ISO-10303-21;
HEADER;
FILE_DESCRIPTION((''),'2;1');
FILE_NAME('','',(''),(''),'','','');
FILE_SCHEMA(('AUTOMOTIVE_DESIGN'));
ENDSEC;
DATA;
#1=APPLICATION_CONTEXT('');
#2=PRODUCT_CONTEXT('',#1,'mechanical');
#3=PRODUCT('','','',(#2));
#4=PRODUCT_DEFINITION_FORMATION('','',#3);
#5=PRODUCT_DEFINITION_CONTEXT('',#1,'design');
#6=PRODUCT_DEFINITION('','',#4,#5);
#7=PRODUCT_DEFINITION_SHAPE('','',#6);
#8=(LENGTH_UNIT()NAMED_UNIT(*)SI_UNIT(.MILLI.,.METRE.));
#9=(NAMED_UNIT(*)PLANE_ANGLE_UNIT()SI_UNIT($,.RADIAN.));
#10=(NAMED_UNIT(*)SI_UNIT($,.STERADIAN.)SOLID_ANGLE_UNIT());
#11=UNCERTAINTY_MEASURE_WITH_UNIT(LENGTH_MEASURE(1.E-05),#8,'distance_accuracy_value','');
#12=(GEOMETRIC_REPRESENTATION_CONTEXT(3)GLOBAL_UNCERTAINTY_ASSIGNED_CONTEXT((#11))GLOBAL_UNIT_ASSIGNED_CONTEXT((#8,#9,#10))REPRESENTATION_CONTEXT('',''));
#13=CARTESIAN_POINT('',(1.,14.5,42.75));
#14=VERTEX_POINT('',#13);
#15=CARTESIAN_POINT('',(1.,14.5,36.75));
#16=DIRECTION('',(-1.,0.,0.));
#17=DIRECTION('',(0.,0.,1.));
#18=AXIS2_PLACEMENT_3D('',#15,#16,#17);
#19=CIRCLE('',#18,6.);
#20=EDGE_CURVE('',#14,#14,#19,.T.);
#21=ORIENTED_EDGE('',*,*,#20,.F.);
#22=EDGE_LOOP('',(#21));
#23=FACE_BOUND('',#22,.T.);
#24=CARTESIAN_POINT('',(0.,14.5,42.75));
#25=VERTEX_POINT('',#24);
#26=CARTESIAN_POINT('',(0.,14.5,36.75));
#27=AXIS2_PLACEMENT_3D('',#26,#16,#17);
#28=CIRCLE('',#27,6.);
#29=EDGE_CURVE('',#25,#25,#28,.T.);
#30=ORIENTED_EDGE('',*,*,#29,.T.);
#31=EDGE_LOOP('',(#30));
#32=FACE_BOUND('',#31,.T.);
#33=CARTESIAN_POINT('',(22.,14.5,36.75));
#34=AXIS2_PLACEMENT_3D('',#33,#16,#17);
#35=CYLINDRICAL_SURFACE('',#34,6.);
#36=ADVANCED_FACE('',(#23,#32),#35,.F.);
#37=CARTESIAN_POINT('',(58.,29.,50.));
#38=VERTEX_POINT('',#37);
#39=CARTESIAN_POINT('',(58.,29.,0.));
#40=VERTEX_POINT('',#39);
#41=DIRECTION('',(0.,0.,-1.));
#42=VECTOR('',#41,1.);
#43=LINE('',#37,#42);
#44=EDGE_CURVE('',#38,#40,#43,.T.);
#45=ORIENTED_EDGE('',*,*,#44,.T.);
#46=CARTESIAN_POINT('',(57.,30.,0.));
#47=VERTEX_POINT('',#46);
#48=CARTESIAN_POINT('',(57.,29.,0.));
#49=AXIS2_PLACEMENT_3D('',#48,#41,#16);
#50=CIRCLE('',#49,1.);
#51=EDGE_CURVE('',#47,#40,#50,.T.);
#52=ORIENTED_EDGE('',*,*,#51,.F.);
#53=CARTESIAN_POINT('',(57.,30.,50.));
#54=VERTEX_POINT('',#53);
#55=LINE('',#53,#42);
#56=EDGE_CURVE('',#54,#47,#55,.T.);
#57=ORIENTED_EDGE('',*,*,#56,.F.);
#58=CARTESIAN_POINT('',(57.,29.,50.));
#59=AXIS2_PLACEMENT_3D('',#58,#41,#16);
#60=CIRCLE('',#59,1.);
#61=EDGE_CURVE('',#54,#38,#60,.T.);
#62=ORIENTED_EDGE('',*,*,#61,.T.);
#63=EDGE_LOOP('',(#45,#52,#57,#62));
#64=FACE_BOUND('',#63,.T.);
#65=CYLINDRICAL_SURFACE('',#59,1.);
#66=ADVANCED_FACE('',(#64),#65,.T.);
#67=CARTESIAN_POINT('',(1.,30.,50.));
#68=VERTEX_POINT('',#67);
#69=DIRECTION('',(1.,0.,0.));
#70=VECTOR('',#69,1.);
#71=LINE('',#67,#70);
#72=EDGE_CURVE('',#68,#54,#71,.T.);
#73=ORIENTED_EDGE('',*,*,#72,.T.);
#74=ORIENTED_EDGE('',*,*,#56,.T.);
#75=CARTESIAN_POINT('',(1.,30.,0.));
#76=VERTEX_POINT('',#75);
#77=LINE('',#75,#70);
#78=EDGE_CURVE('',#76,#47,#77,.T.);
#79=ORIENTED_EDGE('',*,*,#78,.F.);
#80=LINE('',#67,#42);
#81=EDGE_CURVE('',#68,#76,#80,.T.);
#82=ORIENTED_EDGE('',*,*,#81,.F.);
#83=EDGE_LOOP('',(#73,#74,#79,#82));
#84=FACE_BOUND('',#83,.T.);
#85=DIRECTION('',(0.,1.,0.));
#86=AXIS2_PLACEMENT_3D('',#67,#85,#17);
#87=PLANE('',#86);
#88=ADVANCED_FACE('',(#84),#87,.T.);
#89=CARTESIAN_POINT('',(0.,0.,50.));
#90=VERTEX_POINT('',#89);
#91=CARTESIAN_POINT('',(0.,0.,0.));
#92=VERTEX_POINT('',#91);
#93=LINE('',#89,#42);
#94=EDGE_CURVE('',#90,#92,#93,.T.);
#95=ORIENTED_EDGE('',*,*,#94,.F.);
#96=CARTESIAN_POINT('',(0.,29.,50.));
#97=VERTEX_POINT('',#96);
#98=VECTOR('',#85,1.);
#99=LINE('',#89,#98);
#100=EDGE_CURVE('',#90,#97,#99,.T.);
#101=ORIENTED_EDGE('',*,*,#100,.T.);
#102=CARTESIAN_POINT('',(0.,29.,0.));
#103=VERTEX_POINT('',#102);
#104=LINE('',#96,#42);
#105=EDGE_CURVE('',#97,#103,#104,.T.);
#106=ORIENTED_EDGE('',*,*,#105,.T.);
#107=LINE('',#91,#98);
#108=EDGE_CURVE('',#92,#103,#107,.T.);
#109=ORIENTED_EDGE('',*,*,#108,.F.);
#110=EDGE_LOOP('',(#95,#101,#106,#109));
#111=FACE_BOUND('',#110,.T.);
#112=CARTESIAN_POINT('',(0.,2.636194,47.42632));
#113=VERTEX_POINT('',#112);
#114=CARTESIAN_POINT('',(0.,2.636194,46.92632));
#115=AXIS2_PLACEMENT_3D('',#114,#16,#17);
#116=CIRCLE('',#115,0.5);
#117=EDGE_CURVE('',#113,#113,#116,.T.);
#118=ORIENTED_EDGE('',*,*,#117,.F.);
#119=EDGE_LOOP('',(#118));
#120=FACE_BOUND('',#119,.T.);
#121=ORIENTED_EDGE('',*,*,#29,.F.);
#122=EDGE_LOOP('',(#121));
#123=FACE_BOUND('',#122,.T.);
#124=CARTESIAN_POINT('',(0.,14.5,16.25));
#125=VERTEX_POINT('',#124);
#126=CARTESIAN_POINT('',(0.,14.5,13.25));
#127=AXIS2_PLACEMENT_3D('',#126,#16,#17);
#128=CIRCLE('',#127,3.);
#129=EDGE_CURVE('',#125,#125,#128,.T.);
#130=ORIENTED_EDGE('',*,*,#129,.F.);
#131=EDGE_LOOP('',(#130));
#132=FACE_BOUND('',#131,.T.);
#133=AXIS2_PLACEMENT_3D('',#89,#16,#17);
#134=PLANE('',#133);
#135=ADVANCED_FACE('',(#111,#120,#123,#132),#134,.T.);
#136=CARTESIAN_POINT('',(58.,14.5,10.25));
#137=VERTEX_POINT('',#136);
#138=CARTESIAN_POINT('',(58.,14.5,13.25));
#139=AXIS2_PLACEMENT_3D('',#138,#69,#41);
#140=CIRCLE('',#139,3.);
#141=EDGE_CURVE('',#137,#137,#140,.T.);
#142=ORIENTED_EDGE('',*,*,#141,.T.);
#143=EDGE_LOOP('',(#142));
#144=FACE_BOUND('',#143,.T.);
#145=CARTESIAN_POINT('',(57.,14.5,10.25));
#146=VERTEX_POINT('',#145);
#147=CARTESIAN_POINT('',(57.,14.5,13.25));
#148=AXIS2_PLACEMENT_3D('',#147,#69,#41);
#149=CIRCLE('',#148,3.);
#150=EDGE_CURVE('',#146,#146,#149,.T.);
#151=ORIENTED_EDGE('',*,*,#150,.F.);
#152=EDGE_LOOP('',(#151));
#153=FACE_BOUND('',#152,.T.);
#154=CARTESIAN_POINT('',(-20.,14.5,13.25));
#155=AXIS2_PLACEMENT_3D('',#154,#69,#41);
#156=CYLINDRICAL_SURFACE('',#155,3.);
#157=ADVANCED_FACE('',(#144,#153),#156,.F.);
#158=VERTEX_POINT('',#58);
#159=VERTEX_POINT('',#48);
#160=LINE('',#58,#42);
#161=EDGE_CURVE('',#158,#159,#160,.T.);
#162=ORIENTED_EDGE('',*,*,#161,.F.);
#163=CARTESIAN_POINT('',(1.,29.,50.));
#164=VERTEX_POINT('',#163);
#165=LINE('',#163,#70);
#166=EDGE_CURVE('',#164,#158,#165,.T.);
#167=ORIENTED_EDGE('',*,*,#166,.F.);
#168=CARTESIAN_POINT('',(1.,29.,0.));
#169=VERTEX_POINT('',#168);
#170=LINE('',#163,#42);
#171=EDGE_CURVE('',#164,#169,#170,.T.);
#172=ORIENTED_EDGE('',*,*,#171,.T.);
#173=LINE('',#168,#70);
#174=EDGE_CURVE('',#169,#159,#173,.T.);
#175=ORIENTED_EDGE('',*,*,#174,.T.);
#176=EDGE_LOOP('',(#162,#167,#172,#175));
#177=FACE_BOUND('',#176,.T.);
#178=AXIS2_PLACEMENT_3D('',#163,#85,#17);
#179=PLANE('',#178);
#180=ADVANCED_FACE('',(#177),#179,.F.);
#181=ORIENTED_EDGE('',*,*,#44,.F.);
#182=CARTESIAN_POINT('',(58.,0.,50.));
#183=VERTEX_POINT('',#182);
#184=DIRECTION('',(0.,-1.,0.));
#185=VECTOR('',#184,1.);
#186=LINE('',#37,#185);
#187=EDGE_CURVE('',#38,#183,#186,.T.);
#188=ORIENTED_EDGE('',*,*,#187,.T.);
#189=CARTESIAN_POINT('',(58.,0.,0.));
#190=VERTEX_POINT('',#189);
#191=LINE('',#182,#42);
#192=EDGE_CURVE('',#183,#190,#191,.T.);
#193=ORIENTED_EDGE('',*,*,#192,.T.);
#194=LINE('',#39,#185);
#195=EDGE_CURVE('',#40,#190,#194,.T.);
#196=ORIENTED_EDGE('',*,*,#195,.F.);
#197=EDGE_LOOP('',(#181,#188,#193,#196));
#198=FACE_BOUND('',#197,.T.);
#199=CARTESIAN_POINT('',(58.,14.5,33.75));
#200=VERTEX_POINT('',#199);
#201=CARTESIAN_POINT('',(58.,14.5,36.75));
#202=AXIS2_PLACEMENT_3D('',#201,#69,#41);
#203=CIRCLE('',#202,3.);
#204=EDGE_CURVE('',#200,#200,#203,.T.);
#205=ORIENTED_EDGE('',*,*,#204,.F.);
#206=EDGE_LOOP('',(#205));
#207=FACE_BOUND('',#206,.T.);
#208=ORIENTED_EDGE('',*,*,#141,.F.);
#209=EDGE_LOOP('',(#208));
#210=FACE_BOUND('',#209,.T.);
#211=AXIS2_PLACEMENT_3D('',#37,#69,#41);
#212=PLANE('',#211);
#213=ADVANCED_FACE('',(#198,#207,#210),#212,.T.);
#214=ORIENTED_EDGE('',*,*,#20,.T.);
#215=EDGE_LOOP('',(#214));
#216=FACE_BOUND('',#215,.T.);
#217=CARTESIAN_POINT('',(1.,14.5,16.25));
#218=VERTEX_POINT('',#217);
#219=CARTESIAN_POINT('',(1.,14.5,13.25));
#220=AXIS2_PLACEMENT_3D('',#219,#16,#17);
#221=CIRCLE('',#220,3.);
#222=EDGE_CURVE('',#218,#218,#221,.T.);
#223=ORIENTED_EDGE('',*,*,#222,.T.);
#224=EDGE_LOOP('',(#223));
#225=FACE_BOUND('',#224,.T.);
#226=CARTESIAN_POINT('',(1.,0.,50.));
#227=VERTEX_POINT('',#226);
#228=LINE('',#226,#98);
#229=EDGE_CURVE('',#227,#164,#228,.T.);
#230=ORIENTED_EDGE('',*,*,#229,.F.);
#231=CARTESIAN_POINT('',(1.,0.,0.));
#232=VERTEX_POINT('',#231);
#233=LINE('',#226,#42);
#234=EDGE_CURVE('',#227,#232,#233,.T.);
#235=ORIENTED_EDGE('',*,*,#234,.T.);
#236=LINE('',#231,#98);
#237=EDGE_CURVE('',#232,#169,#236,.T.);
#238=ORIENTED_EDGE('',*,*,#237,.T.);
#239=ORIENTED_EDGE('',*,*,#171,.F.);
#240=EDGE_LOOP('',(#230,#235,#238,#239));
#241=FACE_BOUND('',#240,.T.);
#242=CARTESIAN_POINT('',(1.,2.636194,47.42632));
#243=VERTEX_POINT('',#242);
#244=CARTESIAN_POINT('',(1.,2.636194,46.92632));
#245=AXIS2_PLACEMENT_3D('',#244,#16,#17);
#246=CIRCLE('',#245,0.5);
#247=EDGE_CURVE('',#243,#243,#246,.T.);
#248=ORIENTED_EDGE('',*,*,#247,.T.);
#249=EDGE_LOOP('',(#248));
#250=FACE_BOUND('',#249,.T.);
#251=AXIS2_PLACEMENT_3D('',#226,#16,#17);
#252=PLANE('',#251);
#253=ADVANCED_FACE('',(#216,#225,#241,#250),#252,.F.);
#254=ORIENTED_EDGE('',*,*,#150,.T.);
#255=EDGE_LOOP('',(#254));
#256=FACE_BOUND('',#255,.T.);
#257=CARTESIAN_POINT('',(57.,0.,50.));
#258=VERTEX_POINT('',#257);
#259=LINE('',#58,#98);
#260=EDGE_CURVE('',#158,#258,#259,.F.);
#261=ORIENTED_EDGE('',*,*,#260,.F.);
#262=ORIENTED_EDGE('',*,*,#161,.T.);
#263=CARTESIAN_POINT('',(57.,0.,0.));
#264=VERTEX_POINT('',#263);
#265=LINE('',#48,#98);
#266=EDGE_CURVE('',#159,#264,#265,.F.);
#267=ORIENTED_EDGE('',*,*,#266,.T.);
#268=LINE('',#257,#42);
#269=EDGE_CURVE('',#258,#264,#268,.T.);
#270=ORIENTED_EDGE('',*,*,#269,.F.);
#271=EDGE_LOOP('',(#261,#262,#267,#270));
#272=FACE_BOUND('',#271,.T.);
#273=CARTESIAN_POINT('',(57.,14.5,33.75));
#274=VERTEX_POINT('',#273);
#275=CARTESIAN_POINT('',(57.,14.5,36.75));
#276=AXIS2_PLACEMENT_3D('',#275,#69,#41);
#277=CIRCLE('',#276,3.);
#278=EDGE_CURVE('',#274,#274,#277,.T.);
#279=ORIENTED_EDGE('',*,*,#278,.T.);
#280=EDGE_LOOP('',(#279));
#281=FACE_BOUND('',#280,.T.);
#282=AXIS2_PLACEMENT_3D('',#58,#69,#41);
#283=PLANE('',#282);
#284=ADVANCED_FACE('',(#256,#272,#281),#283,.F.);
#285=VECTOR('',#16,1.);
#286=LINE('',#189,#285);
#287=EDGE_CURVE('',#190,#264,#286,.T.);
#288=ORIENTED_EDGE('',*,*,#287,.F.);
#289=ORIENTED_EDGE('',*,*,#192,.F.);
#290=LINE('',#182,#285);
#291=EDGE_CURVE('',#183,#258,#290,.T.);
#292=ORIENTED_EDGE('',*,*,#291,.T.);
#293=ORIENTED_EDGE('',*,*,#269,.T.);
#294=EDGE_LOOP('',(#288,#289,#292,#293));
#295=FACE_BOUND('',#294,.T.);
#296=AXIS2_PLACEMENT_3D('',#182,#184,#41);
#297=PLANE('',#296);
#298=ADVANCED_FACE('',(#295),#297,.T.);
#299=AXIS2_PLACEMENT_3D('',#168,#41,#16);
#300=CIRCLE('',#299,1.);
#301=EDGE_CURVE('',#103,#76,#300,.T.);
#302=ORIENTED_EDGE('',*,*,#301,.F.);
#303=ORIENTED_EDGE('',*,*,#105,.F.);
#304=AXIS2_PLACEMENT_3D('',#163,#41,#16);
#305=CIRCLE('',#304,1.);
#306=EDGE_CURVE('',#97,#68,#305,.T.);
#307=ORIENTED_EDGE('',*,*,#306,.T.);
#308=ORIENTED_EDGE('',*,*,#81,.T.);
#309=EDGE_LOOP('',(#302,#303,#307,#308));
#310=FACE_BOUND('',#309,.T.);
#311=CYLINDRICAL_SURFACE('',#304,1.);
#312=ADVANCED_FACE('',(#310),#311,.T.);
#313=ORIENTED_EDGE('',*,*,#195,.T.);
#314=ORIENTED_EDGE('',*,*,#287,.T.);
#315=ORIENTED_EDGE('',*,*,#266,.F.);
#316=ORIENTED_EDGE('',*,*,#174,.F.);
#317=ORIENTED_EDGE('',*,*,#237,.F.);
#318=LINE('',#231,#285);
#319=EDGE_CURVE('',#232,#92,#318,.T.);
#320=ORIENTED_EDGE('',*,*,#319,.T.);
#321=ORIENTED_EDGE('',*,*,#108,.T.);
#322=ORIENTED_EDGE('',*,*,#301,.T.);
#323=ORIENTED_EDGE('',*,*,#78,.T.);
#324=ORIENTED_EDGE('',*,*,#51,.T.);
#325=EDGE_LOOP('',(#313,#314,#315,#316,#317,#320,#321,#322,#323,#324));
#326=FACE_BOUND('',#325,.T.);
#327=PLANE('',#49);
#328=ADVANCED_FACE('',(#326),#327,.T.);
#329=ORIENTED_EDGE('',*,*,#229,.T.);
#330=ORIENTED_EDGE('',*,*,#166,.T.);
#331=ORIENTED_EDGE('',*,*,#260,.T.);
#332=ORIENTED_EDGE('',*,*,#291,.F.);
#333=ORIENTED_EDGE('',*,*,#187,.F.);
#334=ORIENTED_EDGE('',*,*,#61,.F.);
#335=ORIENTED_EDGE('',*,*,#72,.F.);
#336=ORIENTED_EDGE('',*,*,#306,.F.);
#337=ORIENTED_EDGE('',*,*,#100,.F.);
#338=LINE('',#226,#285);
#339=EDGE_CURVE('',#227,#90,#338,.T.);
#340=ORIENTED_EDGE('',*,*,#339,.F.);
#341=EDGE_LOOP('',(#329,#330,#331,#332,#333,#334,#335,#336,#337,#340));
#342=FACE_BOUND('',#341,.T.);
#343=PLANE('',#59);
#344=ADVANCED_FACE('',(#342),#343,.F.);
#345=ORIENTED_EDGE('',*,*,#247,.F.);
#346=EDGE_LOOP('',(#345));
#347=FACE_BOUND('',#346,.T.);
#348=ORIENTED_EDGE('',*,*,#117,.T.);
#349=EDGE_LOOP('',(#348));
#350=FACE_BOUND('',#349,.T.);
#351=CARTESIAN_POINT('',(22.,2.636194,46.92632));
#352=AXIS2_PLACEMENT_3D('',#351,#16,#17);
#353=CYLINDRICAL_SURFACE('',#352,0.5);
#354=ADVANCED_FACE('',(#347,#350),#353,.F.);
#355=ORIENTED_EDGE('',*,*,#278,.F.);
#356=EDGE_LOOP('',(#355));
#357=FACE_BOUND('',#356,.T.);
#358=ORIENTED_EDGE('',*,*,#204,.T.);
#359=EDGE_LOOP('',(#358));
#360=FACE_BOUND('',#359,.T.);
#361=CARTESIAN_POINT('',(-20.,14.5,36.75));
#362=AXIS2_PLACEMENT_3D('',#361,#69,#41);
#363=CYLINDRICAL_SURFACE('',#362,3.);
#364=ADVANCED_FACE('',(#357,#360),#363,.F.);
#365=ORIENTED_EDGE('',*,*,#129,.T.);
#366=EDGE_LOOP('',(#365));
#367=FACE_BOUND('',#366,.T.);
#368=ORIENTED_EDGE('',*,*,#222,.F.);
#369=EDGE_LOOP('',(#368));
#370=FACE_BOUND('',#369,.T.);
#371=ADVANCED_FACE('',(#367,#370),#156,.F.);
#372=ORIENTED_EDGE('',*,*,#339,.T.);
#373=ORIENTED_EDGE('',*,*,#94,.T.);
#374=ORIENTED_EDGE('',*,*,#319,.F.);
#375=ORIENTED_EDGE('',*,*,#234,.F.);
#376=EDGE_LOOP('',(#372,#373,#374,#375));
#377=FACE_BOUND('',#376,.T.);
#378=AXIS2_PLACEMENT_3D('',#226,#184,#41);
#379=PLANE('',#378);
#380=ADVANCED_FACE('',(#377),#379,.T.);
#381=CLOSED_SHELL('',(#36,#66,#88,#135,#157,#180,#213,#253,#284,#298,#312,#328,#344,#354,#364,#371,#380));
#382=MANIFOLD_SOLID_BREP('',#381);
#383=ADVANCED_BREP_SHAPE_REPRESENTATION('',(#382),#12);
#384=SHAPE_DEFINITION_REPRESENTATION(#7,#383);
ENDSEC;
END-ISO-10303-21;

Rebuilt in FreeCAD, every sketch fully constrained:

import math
import FreeCAD as App
import Part
import Sketcher

V = App.Vector
Q = App.Units.Quantity

doc = App.newDocument("Part")
params = doc.addObject("Spreadsheet::Sheet", "Params")
for row, (alias, value) in enumerate([
    ("sketch1_radius", "1 mm"),
    ("sketch1_width", "56 mm"),
    ("sketch1_height", "29 mm"),
    ("pad1_length", "50 mm"),
    ("sketch2_diameter", "6 mm"),
    ("pocket1_length", "78 mm"),
    ("sketch3_diameter", "1 mm"),
    ("pocket2_length", "22 mm"),
    ("sketch4_diameter", "12 mm"),
    ("pocket3_length", "22 mm"),
], start=1):
    params.set(f"A{row}", alias)
    params.set(f"B{row}", "=" + value)
    params.setAlias(f"B{row}", alias)

body = doc.addObject("PartDesign::Body", "Body")

# Sketch on XY plane
sketch1 = body.newObject("Sketcher::SketchObject", "Sketch")
sketch1.AttachmentSupport = (doc.getObject("XY_Plane"), [""])
sketch1.MapMode = "FlatFace"
sketch1.addGeometry([
    Part.LineSegment(V(0, 29, 0), V(0, 0, 0)),  # 0
    Part.LineSegment(V(0, 0, 0), V(1, 0, 0)),  # 1
    Part.LineSegment(V(1, 0, 0), V(1, 29, 0)),  # 2
    Part.LineSegment(V(1, 29, 0), V(57, 29, 0)),  # 3
    Part.LineSegment(V(57, 29, 0), V(57, 0, 0)),  # 4
    Part.LineSegment(V(57, 0, 0), V(58, 0, 0)),  # 5
    Part.LineSegment(V(58, 0, 0), V(58, 29, 0)),  # 6
    Part.ArcOfCircle(Part.Circle(V(57, 29, 0), V(0, 0, 1), 1), math.radians(0), math.radians(90)),  # 7
    Part.LineSegment(V(57, 30, 0), V(1, 30, 0)),  # 8
    Part.ArcOfCircle(Part.Circle(V(1, 29, 0), V(0, 0, 1), 1), math.radians(90), math.radians(180)),  # 9
], False)
sketch1.addConstraint([
    Sketcher.Constraint("Coincident", 0, 2, 1, 1),
    Sketcher.Constraint("Coincident", 1, 2, 2, 1),
    Sketcher.Constraint("Coincident", 2, 2, 3, 1),
    Sketcher.Constraint("Coincident", 3, 2, 4, 1),
    Sketcher.Constraint("Coincident", 4, 2, 5, 1),
    Sketcher.Constraint("Coincident", 5, 2, 6, 1),
    Sketcher.Constraint("Tangent", 6, 2, 7, 1),
    Sketcher.Constraint("Tangent", 7, 2, 8, 1),
    Sketcher.Constraint("Tangent", 8, 2, 9, 1),
    Sketcher.Constraint("Tangent", 9, 2, 0, 1),
    Sketcher.Constraint("Vertical", 0),
    Sketcher.Constraint("Horizontal", 1),
    Sketcher.Constraint("Vertical", 2),
    Sketcher.Constraint("Horizontal", 3),
    Sketcher.Constraint("Vertical", 4),
    Sketcher.Constraint("Horizontal", 5),
    Sketcher.Constraint("Vertical", 6),
    Sketcher.Constraint("Horizontal", 8),
    Sketcher.Constraint("Coincident", 0, 2, -1, 1),
    Sketcher.Constraint("Coincident", 2, 2, 9, 3),
    Sketcher.Constraint("Coincident", 3, 2, 7, 3),
    Sketcher.Constraint("PointOnObject", 4, 2, -1),
    Sketcher.Constraint("Radius", 7, Q("1 mm")),
    Sketcher.Constraint("DistanceX", 3, 1, 3, 2, Q("56 mm")),
    Sketcher.Constraint("DistanceY", 0, 2, 0, 1, Q("29 mm")),
])
sketch1.setExpression("Constraints[22]", "Params.sketch1_radius")
sketch1.setExpression("Constraints[23]", "Params.sketch1_width")
sketch1.setExpression("Constraints[24]", "Params.sketch1_height")
pad1 = body.newObject("PartDesign::Pad", "Pad")
pad1.Profile = sketch1
pad1.setExpression("Length", "Params.pad1_length")

# Sketch on YZ plane
sketch2 = body.newObject("Sketcher::SketchObject", "Sketch001")
sketch2.AttachmentSupport = (doc.getObject("YZ_Plane"), [""])
sketch2.MapMode = "FlatFace"
sketch2.AttachmentOffset = App.Placement(V(0, 0, 58), App.Rotation())
sketch2.addGeometry([
    Part.Circle(V(14.5, 36.8, 0), V(0, 0, 1), 3),
    Part.Circle(V(14.5, 13.2, 0), V(0, 0, 1), 3),
], False)
sketch2.addConstraint([
    Sketcher.Constraint("Equal", 0, 1),
    Sketcher.Constraint("Vertical", 0, 3, 1, 3),
    Sketcher.Constraint("Diameter", 0, Q("6 mm")),
    Sketcher.Constraint("DistanceX", -1, 1, 0, 3, Q("14.5 mm")),
    Sketcher.Constraint("DistanceY", 1, 3, 0, 3, Q("23.5 mm")),
    Sketcher.Constraint("DistanceY", -1, 1, 0, 3, Q("36.75 mm")),
])
sketch2.setExpression("Constraints[2]", "Params.sketch2_diameter")
pocket1 = body.newObject("PartDesign::Pocket", "Pocket")
pocket1.Profile = sketch2
pocket1.setExpression("Length", "Params.pocket1_length")

# Sketch on YZ plane
sketch3 = body.newObject("Sketcher::SketchObject", "Sketch002")
sketch3.AttachmentSupport = (doc.getObject("YZ_Plane"), [""])
sketch3.MapMode = "FlatFace"
sketch3.addGeometry(Part.Circle(V(2.6, 46.9, 0), V(0, 0, 1), 0.5), False)
sketch3.addConstraint([
    Sketcher.Constraint("Diameter", 0, Q("1 mm")),
    Sketcher.Constraint("DistanceY", -1, 1, 0, 3, Q("46.92632 mm")),
    Sketcher.Constraint("DistanceX", -1, 1, 0, 3, Q("2.636194 mm")),
])
sketch3.setExpression("Constraints[0]", "Params.sketch3_diameter")
pocket2 = body.newObject("PartDesign::Pocket", "Pocket001")
pocket2.Profile = sketch3
pocket2.setExpression("Length", "Params.pocket2_length")
pocket2.Reversed = True

# Sketch on YZ plane
sketch4 = body.newObject("Sketcher::SketchObject", "Sketch003")
sketch4.AttachmentSupport = (doc.getObject("YZ_Plane"), [""])
sketch4.MapMode = "FlatFace"
sketch4.addGeometry(Part.Circle(V(14, 37, 0), V(0, 0, 1), 6), False)
sketch4.addConstraint([
    Sketcher.Constraint("Diameter", 0, Q("12 mm")),
    Sketcher.Constraint("DistanceX", -1, 1, 0, 3, Q("14.5 mm")),
    Sketcher.Constraint("DistanceY", -1, 1, 0, 3, Q("36.75 mm")),
])
sketch4.setExpression("Constraints[0]", "Params.sketch4_diameter")
pocket3 = body.newObject("PartDesign::Pocket", "Pocket002")
pocket3.Profile = sketch4
pocket3.setExpression("Length", "Params.pocket3_length")
pocket3.Reversed = True

doc.recompute()
